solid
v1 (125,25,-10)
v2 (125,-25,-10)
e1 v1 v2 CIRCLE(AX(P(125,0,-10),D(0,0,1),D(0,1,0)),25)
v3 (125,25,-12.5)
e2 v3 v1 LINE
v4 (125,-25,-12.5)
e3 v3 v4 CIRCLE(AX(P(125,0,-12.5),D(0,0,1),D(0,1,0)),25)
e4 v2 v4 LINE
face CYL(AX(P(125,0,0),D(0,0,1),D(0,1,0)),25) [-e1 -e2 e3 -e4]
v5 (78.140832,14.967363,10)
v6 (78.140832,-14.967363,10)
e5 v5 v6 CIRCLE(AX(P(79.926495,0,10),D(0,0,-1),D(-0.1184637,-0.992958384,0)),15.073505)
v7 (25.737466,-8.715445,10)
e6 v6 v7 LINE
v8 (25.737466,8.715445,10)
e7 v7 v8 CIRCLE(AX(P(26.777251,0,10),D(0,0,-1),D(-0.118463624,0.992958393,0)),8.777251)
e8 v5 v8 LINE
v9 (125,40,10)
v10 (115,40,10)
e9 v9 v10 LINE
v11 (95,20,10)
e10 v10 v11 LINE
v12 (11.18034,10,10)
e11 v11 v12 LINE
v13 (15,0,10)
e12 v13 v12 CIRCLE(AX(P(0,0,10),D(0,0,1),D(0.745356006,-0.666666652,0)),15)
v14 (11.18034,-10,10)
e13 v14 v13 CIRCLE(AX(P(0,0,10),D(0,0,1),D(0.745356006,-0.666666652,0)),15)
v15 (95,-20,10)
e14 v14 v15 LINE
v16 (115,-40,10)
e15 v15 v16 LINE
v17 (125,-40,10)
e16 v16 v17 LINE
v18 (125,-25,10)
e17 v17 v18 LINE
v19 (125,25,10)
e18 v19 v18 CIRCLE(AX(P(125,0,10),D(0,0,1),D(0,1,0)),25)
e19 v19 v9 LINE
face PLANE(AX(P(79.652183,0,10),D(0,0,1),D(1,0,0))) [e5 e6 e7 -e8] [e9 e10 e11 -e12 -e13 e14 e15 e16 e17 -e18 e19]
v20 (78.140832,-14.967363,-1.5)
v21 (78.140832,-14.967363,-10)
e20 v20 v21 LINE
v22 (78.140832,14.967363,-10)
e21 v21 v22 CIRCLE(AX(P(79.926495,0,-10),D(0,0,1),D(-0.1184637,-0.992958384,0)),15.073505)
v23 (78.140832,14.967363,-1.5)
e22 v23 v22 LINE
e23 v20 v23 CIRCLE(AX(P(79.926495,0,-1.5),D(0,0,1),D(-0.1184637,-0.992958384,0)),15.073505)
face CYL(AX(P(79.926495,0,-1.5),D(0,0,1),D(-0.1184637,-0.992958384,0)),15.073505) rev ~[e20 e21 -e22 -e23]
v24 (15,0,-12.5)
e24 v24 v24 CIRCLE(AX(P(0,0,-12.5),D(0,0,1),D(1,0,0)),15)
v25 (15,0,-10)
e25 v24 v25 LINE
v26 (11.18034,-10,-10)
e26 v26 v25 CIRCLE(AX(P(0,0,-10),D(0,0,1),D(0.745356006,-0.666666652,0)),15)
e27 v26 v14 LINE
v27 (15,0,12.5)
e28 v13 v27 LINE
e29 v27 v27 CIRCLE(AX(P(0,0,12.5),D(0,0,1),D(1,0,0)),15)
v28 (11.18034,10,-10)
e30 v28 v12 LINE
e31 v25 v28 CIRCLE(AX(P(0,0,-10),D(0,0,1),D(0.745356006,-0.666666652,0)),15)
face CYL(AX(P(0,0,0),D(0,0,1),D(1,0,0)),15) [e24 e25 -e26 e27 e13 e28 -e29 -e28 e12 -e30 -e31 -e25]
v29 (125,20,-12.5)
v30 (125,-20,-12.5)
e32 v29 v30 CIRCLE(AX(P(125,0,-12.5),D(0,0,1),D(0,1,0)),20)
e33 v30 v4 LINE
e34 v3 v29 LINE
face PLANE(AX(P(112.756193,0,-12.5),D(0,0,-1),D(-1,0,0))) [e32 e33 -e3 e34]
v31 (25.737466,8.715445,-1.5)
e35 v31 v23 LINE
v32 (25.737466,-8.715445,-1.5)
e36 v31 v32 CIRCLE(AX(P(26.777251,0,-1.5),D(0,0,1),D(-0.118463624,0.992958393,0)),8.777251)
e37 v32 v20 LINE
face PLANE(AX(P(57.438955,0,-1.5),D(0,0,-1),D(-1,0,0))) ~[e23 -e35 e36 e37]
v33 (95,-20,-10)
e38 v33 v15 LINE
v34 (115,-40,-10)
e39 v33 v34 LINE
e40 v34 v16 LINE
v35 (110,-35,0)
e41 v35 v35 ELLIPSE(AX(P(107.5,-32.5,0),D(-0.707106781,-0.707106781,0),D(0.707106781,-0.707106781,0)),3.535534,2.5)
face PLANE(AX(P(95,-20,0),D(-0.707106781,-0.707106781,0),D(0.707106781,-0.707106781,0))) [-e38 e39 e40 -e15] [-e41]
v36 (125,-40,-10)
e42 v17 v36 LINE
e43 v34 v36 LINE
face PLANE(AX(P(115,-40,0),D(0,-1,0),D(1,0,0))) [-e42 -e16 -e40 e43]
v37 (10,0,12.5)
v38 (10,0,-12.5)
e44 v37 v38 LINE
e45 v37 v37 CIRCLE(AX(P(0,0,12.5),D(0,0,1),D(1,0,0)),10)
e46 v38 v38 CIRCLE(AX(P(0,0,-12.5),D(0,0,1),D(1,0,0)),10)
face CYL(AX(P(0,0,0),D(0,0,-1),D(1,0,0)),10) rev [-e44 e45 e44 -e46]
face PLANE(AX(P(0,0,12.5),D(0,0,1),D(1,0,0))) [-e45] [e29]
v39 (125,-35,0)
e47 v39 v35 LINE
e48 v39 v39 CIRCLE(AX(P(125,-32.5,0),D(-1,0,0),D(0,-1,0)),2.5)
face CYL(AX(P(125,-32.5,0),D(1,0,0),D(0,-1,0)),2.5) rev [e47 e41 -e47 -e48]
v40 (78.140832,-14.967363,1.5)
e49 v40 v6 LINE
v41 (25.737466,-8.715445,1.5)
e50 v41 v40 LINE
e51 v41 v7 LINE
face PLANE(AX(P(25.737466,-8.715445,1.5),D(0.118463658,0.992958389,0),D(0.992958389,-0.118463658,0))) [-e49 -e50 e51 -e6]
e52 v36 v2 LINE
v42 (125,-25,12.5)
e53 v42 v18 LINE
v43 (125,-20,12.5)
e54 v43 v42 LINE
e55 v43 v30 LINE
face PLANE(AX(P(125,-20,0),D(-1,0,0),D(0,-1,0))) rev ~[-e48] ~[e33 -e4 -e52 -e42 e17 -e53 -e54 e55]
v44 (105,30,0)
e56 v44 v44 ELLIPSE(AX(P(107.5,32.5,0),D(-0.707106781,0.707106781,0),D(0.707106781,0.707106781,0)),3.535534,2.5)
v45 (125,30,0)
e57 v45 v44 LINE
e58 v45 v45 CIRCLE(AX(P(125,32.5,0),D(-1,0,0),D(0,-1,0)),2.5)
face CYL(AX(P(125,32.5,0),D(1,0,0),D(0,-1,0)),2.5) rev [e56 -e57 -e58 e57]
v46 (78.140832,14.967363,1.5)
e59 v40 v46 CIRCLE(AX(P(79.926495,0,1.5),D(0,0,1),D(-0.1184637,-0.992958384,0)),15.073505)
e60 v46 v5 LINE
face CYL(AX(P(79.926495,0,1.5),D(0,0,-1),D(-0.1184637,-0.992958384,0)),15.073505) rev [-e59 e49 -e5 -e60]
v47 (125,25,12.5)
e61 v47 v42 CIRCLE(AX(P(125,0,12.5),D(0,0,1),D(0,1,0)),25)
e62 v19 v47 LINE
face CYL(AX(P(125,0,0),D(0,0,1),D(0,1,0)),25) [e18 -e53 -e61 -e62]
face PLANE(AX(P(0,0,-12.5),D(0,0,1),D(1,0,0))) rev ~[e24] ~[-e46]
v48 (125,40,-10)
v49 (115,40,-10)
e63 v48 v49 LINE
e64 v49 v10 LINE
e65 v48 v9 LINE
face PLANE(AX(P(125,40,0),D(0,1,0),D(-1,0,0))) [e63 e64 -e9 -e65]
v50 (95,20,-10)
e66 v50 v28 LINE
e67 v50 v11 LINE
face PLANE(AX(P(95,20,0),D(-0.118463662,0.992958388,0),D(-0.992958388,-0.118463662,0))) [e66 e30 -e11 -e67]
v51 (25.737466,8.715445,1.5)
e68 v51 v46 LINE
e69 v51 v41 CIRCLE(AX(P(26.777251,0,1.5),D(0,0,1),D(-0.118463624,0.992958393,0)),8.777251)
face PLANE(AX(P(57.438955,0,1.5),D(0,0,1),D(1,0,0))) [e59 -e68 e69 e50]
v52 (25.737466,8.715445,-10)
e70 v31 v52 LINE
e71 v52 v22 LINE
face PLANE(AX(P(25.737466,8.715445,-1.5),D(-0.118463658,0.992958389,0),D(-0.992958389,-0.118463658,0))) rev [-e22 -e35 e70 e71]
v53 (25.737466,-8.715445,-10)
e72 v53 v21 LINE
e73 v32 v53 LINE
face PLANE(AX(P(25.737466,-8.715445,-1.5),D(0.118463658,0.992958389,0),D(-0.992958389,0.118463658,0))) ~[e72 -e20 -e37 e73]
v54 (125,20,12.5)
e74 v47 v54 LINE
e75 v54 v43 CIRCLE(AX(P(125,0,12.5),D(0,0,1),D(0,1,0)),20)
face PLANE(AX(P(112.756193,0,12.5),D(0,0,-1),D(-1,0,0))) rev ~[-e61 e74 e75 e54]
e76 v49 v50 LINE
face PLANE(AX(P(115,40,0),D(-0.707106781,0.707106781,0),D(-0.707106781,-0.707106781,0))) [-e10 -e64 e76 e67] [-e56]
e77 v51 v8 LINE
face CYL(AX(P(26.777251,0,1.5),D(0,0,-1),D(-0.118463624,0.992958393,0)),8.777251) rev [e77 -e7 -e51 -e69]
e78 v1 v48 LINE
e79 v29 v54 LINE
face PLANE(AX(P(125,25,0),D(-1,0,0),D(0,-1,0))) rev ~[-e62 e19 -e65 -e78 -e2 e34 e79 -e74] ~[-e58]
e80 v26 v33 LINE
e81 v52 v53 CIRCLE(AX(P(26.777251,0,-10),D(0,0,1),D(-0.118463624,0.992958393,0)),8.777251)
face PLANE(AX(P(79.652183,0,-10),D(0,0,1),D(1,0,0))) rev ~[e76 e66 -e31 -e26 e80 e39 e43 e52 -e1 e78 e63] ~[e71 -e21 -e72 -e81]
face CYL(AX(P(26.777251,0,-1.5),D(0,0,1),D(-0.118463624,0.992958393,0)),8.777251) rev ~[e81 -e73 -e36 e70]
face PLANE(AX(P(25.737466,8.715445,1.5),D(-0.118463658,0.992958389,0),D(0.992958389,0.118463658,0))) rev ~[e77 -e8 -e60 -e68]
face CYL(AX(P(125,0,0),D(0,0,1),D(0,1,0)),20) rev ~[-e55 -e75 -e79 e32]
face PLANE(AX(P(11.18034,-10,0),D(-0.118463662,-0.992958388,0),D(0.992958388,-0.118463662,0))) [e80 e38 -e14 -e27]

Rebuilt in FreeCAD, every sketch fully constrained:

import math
import FreeCAD as App
import Part
import Sketcher
from FreeCAD import Vector
Q = App.Units.Quantity

doc = App.newDocument("Part")
body = doc.addObject("PartDesign::Body", "Body")

# Sketch on XY plane
sketch1 = doc.addObject("Sketcher::SketchObject", "Sketch")
body.addObject(sketch1)
sketch1.AttachmentSupport = (doc.XY_Plane, [""])
sketch1.MapMode = "FlatFace"
sketch1.addGeometry([
    Part.Circle(Vector(0, 0, 0), Vector(0, 0, 1), 15),
    Part.Circle(Vector(0, 0, 0), Vector(0, 0, 1), 10),
], False)
sketch1.addConstraint([
    Sketcher.Constraint("Coincident", 0, 3, -1, 1),
    Sketcher.Constraint("Coincident", 1, 3, -1, 1),
    Sketcher.Constraint("Diameter", 0, Q("30 mm")),
    Sketcher.Constraint("Diameter", 1, Q("20 mm")),
])
pad1 = doc.addObject("PartDesign::Pad", "Pad")
body.addObject(pad1)
pad1.Profile = sketch1
pad1.Length = 25
pad1.Midplane = True

# Sketch on XY plane
sketch2 = doc.addObject("Sketcher::SketchObject", "Sketch001")
body.addObject(sketch2)
sketch2.AttachmentSupport = (doc.XY_Plane, [""])
sketch2.MapMode = "FlatFace"
sketch2.addGeometry([
    Part.LineSegment(Vector(125, 25, 0), Vector(125, 40, 0)),  # 0
    Part.LineSegment(Vector(125, 40, 0), Vector(115, 40, 0)),  # 1
    Part.LineSegment(Vector(115, 40, 0), Vector(95, 20, 0)),  # 2
    Part.LineSegment(Vector(95, 20, 0), Vector(11, 10, 0)),  # 3
    Part.ArcOfCircle(Part.Circle(Vector(0, 0, 0), Vector(0, 0, 1), 15), math.radians(-42), math.radians(42)),  # 4
    Part.LineSegment(Vector(11, -10, 0), Vector(95, -20, 0)),  # 5
    Part.LineSegment(Vector(95, -20, 0), Vector(115, -40, 0)),  # 6
    Part.LineSegment(Vector(115, -40, 0), Vector(125, -40, 0)),  # 7
    Part.LineSegment(Vector(125, -40, 0), Vector(125, -25, 0)),  # 8
    Part.ArcOfCircle(Part.Circle(Vector(125, 0, 0), Vector(0, 0, 1), 25), math.radians(90), math.radians(270)),  # 9
], False)
sketch2.addConstraint([
    Sketcher.Constraint("Coincident", 0, 2, 1, 1),
    Sketcher.Constraint("Coincident", 1, 2, 2, 1),
    Sketcher.Constraint("Coincident", 2, 2, 3, 1),
    Sketcher.Constraint("Coincident", 3, 2, 4, 2),
    Sketcher.Constraint("Coincident", 4, 1, 5, 1),
    Sketcher.Constraint("Coincident", 5, 2, 6, 1),
    Sketcher.Constraint("Coincident", 6, 2, 7, 1),
    Sketcher.Constraint("Coincident", 7, 2, 8, 1),
    Sketcher.Constraint("Coincident", 8, 2, 9, 2),
    Sketcher.Constraint("Coincident", 9, 1, 0, 1),
    Sketcher.Constraint("Vertical", 0),
    Sketcher.Constraint("Horizontal", 1),
    Sketcher.Constraint("Horizontal", 7),
    Sketcher.Constraint("Vertical", 8),
    Sketcher.Constraint("Coincident", 4, 3, -1, 1),
    Sketcher.Constraint("Symmetric", 2, 2, 5, 2, -1),
    Sketcher.Constraint("Symmetric", 1, 2, 6, 2, -1),
    Sketcher.Constraint("Symmetric", 8, 2, 9, 1, -1),
    Sketcher.Constraint("Perpendicular", 2, 6),
    Sketcher.Constraint("Vertical", 9, 3, 0, 2),
    Sketcher.Constraint("Vertical", 3, 2, 4, 1),
    Sketcher.Constraint("Radius", 4, Q("15 mm")),
    Sketcher.Constraint("Radius", 9, Q("25 mm")),
    Sketcher.Constraint("DistanceX", 1, 2, 1, 1, Q("10 mm")),
    Sketcher.Constraint("DistanceY", 0, 1, 0, 2, Q("15 mm")),
    Sketcher.Constraint("DistanceX", -1, 1, 9, 3, Q("125 mm")),
    Sketcher.Constraint("DistanceX", -1, 1, 2, 2, Q("95 mm")),
    Sketcher.Constraint("DistanceY", -1, 1, 3, 2, Q("10 mm")),
])
pad2 = doc.addObject("PartDesign::Pad", "Pad001")
body.addObject(pad2)
pad2.Profile = sketch2
pad2.Length = 20
pad2.Midplane = True

# Sketch on XY plane
sketch3 = doc.addObject("Sketcher::SketchObject", "Sketch002")
body.addObject(sketch3)
sketch3.AttachmentSupport = (doc.XY_Plane, [""])
sketch3.MapMode = "FlatFace"
sketch3.addGeometry([
    Part.ArcOfCircle(Part.Circle(Vector(125, 0, 0), Vector(0, 0, 1), 20), math.radians(90), math.radians(270)),
    Part.LineSegment(Vector(125, 20, 0), Vector(125, 25, 0)),
    Part.ArcOfCircle(Part.Circle(Vector(125, 0, 0), Vector(0, 0, 1), 25), math.radians(90), math.radians(270)),
    Part.LineSegment(Vector(125, -25, 0), Vector(125, -20, 0)),
], False)
sketch3.addConstraint([
    Sketcher.Constraint("Coincident", 0, 1, 1, 1),
    Sketcher.Constraint("Coincident", 1, 2, 2, 1),
    Sketcher.Constraint("Coincident", 2, 2, 3, 1),
    Sketcher.Constraint("Coincident", 3, 2, 0, 2),
    Sketcher.Constraint("Vertical", 1),
    Sketcher.Constraint("Vertical", 3),
    Sketcher.Constraint("Coincident", 2, 3, 0, 3),
    Sketcher.Constraint("Symmetric", 1, 2, 2, 2, -1),
    Sketcher.Constraint("Vertical", 2, 3, 0, 1),
    Sketcher.Constraint("Radius", 0, Q("20 mm")),
    Sketcher.Constraint("Radius", 2, Q("25 mm")),
    Sketcher.Constraint("DistanceX", -1, 1, 0, 3, Q("125 mm")),
])
pad3 = doc.addObject("PartDesign::Pad", "Pad002")
body.addObject(pad3)
pad3.Profile = sketch3
pad3.Length = 25
pad3.Midplane = True

# Sketch on XY plane
sketch4 = doc.addObject("Sketcher::SketchObject", "Sketch003")
body.addObject(sketch4)
sketch4.AttachmentSupport = (doc.XY_Plane, [""])
sketch4.MapMode = "FlatFace"
sketch4.AttachmentOffset = App.Placement(Vector(0, 0, 1.5), App.Rotation())
sketch4.addGeometry([
    Part.ArcOfCircle(Part.Circle(Vector(27, 0, 0), Vector(0, 0, 1), 9), math.radians(97), math.radians(263)),
    Part.LineSegment(Vector(26, -9, 0), Vector(78, -15, 0)),
    Part.ArcOfCircle(Part.Circle(Vector(80, 0, 0), Vector(0, 0, 1), 15), math.radians(-97), math.radians(97)),
    Part.LineSegment(Vector(78, 15, 0), Vector(26, 9, 0)),
], False)
sketch4.addConstraint([
    Sketcher.Constraint("Tangent", 0, 2, 1, 1),
    Sketcher.Constraint("Tangent", 1, 2, 2, 1),
    Sketcher.Constraint("Tangent", 2, 2, 3, 1),
    Sketcher.Constraint("Tangent", 3, 2, 0, 1),
    Sketcher.Constraint("Symmetric", 1, 2, 2, 2, -1),
    Sketcher.Constraint("Radius", 0, Q("8.777251 mm")),
    Sketcher.Constraint("Radius", 2, Q("15.073505 mm")),
    Sketcher.Constraint("DistanceX", -1, 1, 0, 3, Q("26.777251 mm")),
    Sketcher.Constraint("DistanceX", 0, 2, 2, 3, Q("54.189029 mm")),
])
pocket1 = doc.addObject("PartDesign::Pocket", "Pocket")
body.addObject(pocket1)
pocket1.Profile = sketch4
pocket1.Type = "ThroughAll"
pocket1.Reversed = True
doc.recompute()

mirrored = doc.addObject("PartDesign::Mirrored", "Mirrored")
body.addObject(mirrored)
mirrored.Originals = [pocket1]
mirrored.MirrorPlane = (doc.XY_Plane, [""])
body.Tip = mirrored

# Sketch on YZ plane
sketch5 = doc.addObject("Sketcher::SketchObject", "Sketch004")
body.addObject(sketch5)
sketch5.AttachmentSupport = (doc.YZ_Plane, [""])
sketch5.MapMode = "FlatFace"
sketch5.AttachmentOffset = App.Placement(Vector(0, 0, 125), App.Rotation())
sketch5.addGeometry([
    Part.Circle(Vector(32.5, 0, 0), Vector(0, 0, 1), 2.5),
    Part.Circle(Vector(-32.5, 0, 0), Vector(0, 0, 1), 2.5),
], False)
sketch5.addConstraint([
    Sketcher.Constraint("Equal", 0, 1),
    Sketcher.Constraint("Symmetric", 0, 3, 1, 3, -1, 1),
    Sketcher.Constraint("PointOnObject", 0, 3, -1),
    Sketcher.Constraint("Diameter", 0, Q("5 mm")),
    Sketcher.Constraint("DistanceX", 1, 3, 0, 3, Q("65 mm")),
])
pocket2 = doc.addObject("PartDesign::Pocket", "Pocket001")
body.addObject(pocket2)
pocket2.Profile = sketch5
pocket2.Type = "ThroughAll"

doc.recompute()
